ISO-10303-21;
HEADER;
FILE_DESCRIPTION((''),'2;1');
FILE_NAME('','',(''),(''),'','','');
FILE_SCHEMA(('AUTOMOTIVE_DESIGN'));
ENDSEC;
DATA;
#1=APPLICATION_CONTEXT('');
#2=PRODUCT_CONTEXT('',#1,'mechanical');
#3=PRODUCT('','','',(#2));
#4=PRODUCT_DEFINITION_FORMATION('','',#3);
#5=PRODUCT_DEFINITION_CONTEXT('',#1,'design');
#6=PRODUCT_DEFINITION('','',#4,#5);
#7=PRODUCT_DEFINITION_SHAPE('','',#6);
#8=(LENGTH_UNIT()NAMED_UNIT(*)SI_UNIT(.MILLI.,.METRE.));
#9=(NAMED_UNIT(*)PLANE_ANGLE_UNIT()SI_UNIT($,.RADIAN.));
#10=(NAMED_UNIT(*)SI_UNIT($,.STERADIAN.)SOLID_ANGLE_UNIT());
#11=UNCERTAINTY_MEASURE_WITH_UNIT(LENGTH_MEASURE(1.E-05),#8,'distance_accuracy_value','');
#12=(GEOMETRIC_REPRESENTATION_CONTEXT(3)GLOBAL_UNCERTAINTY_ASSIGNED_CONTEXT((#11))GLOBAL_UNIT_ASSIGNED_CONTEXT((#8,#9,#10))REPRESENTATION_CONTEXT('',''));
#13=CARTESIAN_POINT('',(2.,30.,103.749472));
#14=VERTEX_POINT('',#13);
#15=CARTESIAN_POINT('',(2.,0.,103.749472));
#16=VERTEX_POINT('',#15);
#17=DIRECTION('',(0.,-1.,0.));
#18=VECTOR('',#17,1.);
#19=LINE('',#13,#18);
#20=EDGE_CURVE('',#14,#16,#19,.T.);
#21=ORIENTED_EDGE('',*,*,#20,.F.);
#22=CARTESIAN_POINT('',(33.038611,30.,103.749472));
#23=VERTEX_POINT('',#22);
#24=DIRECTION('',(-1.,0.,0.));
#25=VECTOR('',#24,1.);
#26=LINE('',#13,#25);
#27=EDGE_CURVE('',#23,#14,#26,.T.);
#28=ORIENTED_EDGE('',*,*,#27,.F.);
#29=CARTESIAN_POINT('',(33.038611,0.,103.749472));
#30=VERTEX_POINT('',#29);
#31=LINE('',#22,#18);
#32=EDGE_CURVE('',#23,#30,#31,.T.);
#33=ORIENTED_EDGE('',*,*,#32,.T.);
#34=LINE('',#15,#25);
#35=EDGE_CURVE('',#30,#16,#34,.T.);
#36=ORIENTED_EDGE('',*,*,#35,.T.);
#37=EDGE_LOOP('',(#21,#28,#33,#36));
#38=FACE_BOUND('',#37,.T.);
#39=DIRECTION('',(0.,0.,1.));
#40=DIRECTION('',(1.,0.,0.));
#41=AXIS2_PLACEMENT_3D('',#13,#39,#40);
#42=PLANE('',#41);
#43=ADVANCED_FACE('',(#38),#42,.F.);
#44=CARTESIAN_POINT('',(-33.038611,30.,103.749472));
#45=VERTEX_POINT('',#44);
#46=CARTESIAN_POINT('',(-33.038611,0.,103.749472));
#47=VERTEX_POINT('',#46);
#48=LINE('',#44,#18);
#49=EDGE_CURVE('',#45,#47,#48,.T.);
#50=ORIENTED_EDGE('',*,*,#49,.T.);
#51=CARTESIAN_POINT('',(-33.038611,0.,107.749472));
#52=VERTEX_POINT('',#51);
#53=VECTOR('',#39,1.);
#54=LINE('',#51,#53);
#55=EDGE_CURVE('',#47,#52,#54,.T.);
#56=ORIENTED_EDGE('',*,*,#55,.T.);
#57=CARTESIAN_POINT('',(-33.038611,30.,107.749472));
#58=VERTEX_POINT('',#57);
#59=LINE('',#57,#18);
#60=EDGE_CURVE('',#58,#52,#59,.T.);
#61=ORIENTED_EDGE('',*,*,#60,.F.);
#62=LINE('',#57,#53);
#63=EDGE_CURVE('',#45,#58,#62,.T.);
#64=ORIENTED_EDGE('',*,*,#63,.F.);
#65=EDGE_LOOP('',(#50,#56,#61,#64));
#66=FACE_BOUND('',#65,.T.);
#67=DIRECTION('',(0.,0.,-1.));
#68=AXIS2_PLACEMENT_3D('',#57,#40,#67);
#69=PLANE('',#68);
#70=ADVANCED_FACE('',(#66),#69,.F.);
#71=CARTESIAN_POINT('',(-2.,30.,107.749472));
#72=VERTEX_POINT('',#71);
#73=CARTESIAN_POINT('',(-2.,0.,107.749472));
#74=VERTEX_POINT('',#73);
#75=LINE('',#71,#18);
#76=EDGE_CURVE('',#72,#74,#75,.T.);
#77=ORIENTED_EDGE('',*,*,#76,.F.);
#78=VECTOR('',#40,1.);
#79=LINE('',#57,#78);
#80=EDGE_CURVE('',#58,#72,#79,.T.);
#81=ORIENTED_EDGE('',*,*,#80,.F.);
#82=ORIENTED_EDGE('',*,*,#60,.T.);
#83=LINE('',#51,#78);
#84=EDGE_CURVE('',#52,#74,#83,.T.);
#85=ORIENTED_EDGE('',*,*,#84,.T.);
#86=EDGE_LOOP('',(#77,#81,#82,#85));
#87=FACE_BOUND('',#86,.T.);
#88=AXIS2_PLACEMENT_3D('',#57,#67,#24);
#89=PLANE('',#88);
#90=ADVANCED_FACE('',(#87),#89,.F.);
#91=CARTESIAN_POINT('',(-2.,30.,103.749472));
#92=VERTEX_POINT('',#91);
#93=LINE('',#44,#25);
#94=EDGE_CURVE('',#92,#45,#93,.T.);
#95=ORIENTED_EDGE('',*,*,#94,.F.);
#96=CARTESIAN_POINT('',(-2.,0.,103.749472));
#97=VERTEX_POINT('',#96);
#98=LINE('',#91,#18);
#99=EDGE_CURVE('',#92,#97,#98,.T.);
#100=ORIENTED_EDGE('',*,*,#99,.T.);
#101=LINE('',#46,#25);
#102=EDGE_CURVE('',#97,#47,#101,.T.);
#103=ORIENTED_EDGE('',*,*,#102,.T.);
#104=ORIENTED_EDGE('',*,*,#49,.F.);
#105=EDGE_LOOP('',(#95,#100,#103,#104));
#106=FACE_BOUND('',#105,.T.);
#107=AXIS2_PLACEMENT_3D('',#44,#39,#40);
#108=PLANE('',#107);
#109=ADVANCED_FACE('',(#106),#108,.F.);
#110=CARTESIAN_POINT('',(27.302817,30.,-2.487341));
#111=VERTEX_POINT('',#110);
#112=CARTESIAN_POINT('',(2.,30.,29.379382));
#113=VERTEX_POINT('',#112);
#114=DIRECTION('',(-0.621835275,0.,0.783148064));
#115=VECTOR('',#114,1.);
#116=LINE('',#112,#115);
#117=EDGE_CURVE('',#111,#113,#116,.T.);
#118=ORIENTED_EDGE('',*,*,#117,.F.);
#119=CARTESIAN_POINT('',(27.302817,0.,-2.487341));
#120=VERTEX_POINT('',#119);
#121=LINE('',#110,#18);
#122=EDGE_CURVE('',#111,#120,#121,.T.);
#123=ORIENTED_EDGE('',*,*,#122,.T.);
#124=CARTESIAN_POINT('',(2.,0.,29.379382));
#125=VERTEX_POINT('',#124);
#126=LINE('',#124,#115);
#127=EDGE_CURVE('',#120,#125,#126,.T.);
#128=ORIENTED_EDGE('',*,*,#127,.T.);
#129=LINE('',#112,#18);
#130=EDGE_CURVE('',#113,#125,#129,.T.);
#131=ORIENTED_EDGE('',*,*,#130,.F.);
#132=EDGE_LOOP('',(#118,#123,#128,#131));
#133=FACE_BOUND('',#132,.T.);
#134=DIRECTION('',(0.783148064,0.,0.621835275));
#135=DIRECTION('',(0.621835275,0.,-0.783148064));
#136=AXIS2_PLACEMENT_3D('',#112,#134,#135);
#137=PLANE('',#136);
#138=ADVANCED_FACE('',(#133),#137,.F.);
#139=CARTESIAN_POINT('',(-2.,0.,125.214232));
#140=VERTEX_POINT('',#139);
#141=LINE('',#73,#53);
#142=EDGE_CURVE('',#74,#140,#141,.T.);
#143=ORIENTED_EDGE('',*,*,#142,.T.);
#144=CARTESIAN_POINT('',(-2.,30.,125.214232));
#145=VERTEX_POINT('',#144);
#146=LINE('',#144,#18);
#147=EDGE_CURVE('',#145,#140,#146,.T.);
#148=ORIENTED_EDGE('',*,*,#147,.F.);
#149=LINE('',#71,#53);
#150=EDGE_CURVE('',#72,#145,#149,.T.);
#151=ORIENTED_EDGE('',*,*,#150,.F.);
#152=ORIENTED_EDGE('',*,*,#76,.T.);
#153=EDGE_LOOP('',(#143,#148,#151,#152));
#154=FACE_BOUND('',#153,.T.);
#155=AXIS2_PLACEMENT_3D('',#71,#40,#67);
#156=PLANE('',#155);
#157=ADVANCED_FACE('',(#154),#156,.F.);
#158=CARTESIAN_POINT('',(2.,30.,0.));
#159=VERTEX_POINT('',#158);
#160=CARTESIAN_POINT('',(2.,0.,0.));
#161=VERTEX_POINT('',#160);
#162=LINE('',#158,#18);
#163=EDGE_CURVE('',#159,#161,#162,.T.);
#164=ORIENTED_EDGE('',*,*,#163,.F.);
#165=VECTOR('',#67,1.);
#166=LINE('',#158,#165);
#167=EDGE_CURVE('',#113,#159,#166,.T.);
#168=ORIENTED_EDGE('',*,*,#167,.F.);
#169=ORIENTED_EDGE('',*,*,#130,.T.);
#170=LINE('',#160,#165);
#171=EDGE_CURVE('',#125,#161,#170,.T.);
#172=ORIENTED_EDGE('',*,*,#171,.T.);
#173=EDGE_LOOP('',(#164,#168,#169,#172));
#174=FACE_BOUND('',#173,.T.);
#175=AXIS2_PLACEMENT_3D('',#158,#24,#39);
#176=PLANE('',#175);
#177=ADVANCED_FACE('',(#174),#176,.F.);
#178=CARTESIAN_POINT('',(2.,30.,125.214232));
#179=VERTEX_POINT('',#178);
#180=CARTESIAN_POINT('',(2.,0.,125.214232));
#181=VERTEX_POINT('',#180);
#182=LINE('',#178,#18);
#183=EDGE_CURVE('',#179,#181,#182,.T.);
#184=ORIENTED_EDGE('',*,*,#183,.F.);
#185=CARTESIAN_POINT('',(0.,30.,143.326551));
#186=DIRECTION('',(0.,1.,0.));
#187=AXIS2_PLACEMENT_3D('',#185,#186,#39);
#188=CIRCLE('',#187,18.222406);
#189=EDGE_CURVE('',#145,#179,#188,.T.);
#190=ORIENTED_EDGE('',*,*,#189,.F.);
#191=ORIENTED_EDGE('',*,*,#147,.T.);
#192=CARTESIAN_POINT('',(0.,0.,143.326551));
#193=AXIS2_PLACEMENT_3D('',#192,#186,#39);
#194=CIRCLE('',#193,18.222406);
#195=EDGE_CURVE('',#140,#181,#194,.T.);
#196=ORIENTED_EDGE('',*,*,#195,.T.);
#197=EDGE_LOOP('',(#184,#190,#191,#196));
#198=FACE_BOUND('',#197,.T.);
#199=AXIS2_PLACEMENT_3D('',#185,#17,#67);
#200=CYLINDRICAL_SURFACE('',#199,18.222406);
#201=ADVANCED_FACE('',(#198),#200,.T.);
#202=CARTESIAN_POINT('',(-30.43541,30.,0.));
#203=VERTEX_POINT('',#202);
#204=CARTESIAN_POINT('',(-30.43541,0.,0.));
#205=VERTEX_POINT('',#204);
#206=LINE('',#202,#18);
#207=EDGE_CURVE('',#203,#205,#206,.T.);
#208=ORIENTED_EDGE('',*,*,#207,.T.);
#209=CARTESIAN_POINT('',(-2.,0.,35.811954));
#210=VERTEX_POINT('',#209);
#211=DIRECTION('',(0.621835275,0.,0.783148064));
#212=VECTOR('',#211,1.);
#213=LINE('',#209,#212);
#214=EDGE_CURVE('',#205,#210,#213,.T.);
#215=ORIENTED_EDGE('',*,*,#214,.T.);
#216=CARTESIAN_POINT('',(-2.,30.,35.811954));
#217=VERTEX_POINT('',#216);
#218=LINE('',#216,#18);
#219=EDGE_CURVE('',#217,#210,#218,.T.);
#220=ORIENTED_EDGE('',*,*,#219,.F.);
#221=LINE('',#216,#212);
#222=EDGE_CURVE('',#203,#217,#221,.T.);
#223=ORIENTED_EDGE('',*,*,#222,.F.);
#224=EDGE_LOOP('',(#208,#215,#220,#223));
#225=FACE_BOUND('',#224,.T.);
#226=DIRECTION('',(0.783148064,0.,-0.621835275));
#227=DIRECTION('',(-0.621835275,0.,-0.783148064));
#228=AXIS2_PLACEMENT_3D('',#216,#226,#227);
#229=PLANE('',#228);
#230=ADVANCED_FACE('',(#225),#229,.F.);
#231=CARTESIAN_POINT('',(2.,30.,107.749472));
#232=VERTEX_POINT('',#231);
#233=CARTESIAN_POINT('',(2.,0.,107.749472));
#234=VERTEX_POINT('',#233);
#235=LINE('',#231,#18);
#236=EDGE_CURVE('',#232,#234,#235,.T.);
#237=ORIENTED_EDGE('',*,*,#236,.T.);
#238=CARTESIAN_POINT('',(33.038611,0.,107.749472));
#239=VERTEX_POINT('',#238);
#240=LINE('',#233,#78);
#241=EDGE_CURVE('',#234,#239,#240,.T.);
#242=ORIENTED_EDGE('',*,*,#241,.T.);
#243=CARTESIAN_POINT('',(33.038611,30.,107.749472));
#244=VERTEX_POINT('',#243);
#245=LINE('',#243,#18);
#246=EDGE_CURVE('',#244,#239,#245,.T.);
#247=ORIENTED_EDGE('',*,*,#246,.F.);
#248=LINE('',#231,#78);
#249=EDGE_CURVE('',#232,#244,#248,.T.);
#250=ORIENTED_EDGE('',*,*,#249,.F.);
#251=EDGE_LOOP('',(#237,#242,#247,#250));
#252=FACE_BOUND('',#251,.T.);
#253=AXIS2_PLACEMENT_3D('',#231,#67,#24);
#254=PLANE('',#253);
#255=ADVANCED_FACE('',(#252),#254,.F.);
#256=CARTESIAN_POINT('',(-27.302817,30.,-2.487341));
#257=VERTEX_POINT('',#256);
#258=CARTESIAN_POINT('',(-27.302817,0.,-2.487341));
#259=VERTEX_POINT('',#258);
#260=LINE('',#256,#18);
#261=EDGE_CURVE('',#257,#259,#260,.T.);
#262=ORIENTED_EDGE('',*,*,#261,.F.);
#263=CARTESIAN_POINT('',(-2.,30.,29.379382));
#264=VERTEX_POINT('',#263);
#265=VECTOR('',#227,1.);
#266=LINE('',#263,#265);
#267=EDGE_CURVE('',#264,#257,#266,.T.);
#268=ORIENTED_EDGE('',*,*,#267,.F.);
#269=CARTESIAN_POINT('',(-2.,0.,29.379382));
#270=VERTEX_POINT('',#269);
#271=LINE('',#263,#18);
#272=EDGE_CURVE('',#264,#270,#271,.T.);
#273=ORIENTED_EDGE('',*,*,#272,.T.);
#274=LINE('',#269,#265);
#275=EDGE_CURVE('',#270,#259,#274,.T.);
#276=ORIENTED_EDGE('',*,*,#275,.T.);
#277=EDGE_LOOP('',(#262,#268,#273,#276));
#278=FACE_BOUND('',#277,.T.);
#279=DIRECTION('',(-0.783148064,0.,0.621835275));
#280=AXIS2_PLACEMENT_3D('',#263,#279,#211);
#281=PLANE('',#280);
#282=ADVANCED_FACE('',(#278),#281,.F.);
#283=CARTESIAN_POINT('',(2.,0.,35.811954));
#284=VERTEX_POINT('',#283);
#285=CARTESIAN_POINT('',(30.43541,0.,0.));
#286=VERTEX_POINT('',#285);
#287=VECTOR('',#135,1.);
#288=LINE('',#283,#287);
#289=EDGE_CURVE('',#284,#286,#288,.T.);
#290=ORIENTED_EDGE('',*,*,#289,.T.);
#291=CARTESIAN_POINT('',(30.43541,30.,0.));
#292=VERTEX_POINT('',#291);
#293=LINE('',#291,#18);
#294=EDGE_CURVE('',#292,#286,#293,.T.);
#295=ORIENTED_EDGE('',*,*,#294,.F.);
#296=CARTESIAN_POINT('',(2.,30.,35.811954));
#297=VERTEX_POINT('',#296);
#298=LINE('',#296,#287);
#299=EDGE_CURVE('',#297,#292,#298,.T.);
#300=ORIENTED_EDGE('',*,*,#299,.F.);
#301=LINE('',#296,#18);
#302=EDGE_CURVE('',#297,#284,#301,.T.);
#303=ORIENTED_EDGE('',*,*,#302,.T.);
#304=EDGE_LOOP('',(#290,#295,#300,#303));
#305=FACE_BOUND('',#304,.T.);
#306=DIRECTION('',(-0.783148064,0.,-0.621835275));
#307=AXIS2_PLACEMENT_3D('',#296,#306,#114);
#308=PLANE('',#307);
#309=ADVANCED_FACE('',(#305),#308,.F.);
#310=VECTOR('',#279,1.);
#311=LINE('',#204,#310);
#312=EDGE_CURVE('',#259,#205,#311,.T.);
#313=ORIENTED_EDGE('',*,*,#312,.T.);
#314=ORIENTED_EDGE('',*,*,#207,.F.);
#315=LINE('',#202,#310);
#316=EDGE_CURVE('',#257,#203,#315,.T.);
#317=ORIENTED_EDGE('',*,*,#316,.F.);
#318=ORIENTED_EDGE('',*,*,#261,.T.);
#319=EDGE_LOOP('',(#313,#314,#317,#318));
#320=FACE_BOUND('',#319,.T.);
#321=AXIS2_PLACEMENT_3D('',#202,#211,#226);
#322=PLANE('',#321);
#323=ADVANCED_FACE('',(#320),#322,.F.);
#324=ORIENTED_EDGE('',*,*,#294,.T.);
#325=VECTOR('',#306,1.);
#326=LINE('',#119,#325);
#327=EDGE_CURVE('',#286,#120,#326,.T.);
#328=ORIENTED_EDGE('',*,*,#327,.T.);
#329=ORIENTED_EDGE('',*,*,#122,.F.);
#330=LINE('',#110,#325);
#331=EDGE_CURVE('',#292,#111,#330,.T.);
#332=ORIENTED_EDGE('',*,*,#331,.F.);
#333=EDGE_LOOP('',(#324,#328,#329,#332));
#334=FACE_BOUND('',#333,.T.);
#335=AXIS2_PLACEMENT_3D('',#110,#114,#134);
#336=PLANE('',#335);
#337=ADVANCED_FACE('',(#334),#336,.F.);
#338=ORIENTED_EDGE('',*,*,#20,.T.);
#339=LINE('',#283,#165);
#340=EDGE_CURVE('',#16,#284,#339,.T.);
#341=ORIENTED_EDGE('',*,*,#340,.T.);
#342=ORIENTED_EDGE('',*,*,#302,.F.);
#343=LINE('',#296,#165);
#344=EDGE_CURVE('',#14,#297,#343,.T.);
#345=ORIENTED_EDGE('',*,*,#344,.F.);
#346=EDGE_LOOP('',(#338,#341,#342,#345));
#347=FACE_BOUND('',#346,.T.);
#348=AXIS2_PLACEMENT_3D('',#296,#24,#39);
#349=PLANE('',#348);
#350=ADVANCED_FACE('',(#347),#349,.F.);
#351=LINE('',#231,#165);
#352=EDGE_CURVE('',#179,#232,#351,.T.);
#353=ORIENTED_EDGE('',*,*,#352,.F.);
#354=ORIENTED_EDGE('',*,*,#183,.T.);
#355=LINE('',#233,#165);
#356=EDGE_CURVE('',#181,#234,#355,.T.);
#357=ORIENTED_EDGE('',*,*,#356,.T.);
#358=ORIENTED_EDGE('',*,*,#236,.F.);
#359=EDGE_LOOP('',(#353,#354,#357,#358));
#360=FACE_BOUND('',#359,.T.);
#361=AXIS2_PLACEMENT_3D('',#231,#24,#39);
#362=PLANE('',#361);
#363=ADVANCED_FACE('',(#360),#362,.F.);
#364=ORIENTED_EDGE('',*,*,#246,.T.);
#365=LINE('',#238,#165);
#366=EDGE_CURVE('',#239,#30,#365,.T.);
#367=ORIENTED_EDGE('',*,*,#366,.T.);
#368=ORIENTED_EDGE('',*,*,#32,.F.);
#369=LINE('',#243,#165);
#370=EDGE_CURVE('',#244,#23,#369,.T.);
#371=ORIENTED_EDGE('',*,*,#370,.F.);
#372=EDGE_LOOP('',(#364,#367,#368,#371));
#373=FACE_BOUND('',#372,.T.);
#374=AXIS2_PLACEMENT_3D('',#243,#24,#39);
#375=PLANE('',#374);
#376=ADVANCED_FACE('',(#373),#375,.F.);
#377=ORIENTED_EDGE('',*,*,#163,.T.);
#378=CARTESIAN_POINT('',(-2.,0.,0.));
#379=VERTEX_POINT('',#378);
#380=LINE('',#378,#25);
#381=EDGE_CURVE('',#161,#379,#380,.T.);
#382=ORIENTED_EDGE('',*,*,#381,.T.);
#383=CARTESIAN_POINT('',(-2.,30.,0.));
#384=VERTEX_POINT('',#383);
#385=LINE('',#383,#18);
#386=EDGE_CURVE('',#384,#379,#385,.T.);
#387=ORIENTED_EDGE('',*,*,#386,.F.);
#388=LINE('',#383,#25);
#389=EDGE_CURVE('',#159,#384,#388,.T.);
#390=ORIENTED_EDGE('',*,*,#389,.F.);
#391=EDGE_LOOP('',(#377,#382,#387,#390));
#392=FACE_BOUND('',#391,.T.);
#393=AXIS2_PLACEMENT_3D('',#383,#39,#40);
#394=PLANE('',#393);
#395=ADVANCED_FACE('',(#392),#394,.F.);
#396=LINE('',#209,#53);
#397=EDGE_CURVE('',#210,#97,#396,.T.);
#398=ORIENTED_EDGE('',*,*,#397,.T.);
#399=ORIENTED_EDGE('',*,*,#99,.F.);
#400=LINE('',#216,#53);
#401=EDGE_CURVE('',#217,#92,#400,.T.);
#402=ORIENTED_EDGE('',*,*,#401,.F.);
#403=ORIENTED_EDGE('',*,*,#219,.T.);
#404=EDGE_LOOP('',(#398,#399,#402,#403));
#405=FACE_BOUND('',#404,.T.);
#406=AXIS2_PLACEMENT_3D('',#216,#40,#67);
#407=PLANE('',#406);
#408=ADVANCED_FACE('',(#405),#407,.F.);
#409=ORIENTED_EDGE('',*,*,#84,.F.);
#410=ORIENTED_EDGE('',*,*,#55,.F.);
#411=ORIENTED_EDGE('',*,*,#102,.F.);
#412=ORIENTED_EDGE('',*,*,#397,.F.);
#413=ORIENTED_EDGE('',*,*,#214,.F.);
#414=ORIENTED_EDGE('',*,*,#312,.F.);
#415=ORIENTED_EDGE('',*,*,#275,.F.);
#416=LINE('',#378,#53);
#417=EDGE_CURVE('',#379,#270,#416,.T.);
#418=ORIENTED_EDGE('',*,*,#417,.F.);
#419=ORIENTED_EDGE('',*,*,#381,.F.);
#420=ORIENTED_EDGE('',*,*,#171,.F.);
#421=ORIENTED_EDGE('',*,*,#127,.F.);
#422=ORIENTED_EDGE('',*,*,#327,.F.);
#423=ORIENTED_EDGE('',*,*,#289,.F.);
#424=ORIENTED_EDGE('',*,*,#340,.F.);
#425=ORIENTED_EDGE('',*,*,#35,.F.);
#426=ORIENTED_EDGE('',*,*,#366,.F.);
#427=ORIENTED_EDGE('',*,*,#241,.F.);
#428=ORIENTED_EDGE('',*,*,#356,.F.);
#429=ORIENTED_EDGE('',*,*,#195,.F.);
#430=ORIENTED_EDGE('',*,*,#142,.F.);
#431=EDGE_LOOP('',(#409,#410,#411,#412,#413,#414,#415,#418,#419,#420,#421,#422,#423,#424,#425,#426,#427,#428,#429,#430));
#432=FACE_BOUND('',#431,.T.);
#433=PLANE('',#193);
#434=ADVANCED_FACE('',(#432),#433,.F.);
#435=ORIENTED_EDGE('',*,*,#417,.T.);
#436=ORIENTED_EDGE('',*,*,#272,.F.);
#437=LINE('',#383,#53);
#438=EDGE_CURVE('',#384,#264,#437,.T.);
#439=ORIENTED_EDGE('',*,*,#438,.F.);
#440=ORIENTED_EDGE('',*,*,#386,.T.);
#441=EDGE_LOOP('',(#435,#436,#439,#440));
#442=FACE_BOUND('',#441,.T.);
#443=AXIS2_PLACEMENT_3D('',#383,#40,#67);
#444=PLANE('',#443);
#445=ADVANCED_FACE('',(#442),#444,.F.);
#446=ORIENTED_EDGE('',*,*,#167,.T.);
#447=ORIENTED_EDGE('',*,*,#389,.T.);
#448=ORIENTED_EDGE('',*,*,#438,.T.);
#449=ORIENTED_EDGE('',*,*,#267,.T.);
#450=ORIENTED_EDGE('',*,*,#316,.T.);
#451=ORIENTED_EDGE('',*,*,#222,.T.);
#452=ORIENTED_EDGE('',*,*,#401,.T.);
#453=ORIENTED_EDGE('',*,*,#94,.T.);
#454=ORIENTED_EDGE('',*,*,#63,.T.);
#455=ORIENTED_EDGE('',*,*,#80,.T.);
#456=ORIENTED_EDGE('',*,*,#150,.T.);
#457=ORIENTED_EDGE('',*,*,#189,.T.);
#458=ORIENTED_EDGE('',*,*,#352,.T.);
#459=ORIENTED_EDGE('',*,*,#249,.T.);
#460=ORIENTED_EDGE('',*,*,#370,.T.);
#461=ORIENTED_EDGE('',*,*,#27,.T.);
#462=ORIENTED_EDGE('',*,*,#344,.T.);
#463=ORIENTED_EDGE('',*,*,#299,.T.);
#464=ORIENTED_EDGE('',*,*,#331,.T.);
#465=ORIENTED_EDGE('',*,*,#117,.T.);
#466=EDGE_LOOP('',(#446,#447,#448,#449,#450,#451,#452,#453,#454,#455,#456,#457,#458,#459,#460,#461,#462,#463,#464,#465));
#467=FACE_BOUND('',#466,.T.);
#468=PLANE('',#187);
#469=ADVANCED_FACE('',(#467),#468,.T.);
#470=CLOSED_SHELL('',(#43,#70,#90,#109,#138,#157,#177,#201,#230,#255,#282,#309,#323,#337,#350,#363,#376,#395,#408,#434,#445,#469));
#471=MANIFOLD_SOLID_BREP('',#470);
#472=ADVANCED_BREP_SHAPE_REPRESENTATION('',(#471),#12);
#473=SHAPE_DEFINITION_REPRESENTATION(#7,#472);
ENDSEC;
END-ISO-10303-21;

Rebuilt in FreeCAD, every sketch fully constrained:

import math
import FreeCAD as App
import Part
import Sketcher
Q = App.Units.Quantity

doc = App.newDocument("Part")
body = doc.addObject("PartDesign::Body", "Body")

# Sketch on XZ plane
sketch1 = body.newObject("Sketcher::SketchObject", "Sketch")
sketch1.AttachmentSupport = (doc.getObject("XZ_Plane"), [""])
sketch1.MapMode = "FlatFace"
sketch1.addGeometry([
    Part.LineSegment(App.Vector(2, 107.749472, 0), App.Vector(33.038611, 107.749472, 0)),  # 0
    Part.LineSegment(App.Vector(33.038611, 107.749472, 0), App.Vector(33.038611, 103.749472, 0)),  # 1
    Part.LineSegment(App.Vector(33.038611, 103.749472, 0), App.Vector(2, 103.749472, 0)),  # 2
    Part.LineSegment(App.Vector(2, 103.749472, 0), App.Vector(2, 35.811954, 0)),  # 3
    Part.LineSegment(App.Vector(2, 35.811954, 0), App.Vector(30.43541, 0, 0)),  # 4
    Part.LineSegment(App.Vector(30.43541, 0, 0), App.Vector(27.302817, -2.487341, 0)),  # 5
    Part.LineSegment(App.Vector(27.302817, -2.487341, 0), App.Vector(2, 29.379382, 0)),  # 6
    Part.LineSegment(App.Vector(2, 29.379382, 0), App.Vector(2, 0, 0)),  # 7
    Part.LineSegment(App.Vector(2, 0, 0), App.Vector(-2, 0, 0)),  # 8
    Part.LineSegment(App.Vector(-2, 0, 0), App.Vector(-2, 29.379382, 0)),  # 9
    Part.LineSegment(App.Vector(-2, 29.379382, 0), App.Vector(-27.302817, -2.487341, 0)),  # 10
    Part.LineSegment(App.Vector(-27.302817, -2.487341, 0), App.Vector(-30.43541, 0, 0)),  # 11
    Part.LineSegment(App.Vector(-30.43541, 0, 0), App.Vector(-2, 35.811954, 0)),  # 12
    Part.LineSegment(App.Vector(-2, 35.811954, 0), App.Vector(-2, 103.749472, 0)),  # 13
    Part.LineSegment(App.Vector(-2, 103.749472, 0), App.Vector(-33.038611, 103.749472, 0)),  # 14
    Part.LineSegment(App.Vector(-33.038611, 103.749472, 0), App.Vector(-33.038611, 107.749472, 0)),  # 15
    Part.LineSegment(App.Vector(-33.038611, 107.749472, 0), App.Vector(-2, 107.749472, 0)),  # 16
    Part.LineSegment(App.Vector(-2, 107.749472, 0), App.Vector(-2, 125.214232, 0)),  # 17
    Part.ArcOfCircle(Part.Circle(App.Vector(0, 143.326551, 0), App.Vector(0, 0, 1), 18.222406), math.radians(-83.698808), math.radians(263.698808)),  # 18
    Part.LineSegment(App.Vector(2, 125.214232, 0), App.Vector(2, 107.749472, 0)),  # 19
], False)
sketch1.addConstraint([
    Sketcher.Constraint("Coincident", 0, 2, 1, 1),
    Sketcher.Constraint("Coincident", 1, 2, 2, 1),
    Sketcher.Constraint("Coincident", 2, 2, 3, 1),
    Sketcher.Constraint("Coincident", 3, 2, 4, 1),
    Sketcher.Constraint("Coincident", 4, 2, 5, 1),
    Sketcher.Constraint("Coincident", 5, 2, 6, 1),
    Sketcher.Constraint("Coincident", 6, 2, 7, 1),
    Sketcher.Constraint("Coincident", 7, 2, 8, 1),
    Sketcher.Constraint("Coincident", 8, 2, 9, 1),
    Sketcher.Constraint("Coincident", 9, 2, 10, 1),
    Sketcher.Constraint("Coincident", 10, 2, 11, 1),
    Sketcher.Constraint("Coincident", 11, 2, 12, 1),
    Sketcher.Constraint("Coincident", 12, 2, 13, 1),
    Sketcher.Constraint("Coincident", 13, 2, 14, 1),
    Sketcher.Constraint("Coincident", 14, 2, 15, 1),
    Sketcher.Constraint("Coincident", 15, 2, 16, 1),
    Sketcher.Constraint("Coincident", 16, 2, 17, 1),
    Sketcher.Constraint("Coincident", 17, 2, 18, 2),
    Sketcher.Constraint("Coincident", 18, 1, 19, 1),
    Sketcher.Constraint("Coincident", 19, 2, 0, 1),
    Sketcher.Constraint("Horizontal", 0),
    Sketcher.Constraint("Vertical", 1),
    Sketcher.Constraint("Horizontal", 2),
    Sketcher.Constraint("Vertical", 3),
    Sketcher.Constraint("Vertical", 7),
    Sketcher.Constraint("Horizontal", 8),
    Sketcher.Constraint("Vertical", 9),
    Sketcher.Constraint("Vertical", 13),
    Sketcher.Constraint("Horizontal", 14),
    Sketcher.Constraint("Vertical", 15),
    Sketcher.Constraint("Horizontal", 16),
    Sketcher.Constraint("Vertical", 17),
    Sketcher.Constraint("Vertical", 19),
    Sketcher.Constraint("Symmetric", 7, 2, 8, 2, -1, 1),
    Sketcher.Constraint("Symmetric", 4, 2, 11, 2, -1, 1),
    Sketcher.Constraint("Symmetric", 5, 2, 10, 2, -2),
    Sketcher.Constraint("Symmetric", 3, 2, 12, 2, -2),
    Sketcher.Constraint("Symmetric", 1, 2, 14, 2, -2),
    Sketcher.Constraint("Symmetric", 17, 2, 18, 1, -2),
    Sketcher.Constraint("PointOnObject", 4, 2, -1),
    Sketcher.Constraint("Perpendicular", 4, 5),
    Sketcher.Constraint("Perpendicular", 5, 6),
    Sketcher.Constraint("Perpendicular", 10, 11),
    Sketcher.Constraint("Horizontal", 0, 2, 15, 2),
    Sketcher.Constraint("Vertical", 3, 2, 6, 2),
    Sketcher.Constraint("Vertical", 13, 2, 16, 2),
    Sketcher.Constraint("Equal", 8, 1),
    Sketcher.Constraint("DistanceX", 8, 2, 8, 1, Q("4 mm")),
    Sketcher.Constraint("Distance", 5, Q("4 mm")),
    Sketcher.Constraint("Radius", 18, Q("18.222406 mm")),
    Sketcher.Constraint("DistanceX", 0, 1, 0, 2, Q("31.038611 mm")),
    Sketcher.Constraint("DistanceY", 3, 2, 3, 1, Q("67.937518 mm")),
    Sketcher.Constraint("DistanceY", 7, 2, 7, 1, Q("29.379382 mm")),
    Sketcher.Constraint("DistanceY", 17, 1, 17, 2, Q("17.46476 mm")),
    Sketcher.Constraint("DistanceX", 4, 2, 1, 2, Q("2.603201 mm")),
])
pad1 = body.newObject("PartDesign::Pad", "Pad")
pad1.Profile = sketch1
pad1.Length = 30
pad1.Reversed = True

doc.recompute()
